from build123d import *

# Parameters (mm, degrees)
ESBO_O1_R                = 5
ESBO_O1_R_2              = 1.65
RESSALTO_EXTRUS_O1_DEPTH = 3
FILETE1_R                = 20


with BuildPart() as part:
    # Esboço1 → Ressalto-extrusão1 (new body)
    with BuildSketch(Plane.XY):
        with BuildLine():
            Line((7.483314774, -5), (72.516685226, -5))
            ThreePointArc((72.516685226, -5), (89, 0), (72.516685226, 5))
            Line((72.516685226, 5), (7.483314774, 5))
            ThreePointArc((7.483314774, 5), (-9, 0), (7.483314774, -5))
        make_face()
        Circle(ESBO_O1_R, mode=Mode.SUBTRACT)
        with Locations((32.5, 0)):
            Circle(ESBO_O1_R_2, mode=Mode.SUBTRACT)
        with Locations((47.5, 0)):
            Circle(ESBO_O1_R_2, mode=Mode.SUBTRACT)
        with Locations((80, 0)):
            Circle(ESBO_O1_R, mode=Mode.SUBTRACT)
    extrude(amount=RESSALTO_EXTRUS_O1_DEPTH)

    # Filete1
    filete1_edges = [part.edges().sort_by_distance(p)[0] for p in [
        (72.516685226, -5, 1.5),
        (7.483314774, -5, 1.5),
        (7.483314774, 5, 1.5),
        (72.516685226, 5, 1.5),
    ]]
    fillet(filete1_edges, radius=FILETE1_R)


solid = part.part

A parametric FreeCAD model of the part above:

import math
import FreeCAD as App
import Part
import Sketcher

V = App.Vector


def edges_at(feature, points):
    """Names of the edges that pass closest to the given points."""
    edges = feature.Shape.Edges
    near = lambda p: min(range(len(edges)), key=lambda i: edges[i].distToShape(Part.Vertex(*p))[0])
    return sorted({f"Edge{near(p) + 1}" for p in points})

doc = App.newDocument("Part")
body = doc.addObject("PartDesign::Body", "Body")

# Sketch on XY plane
sketch1 = body.newObject("Sketcher::SketchObject", "Sketch")
sketch1.AttachmentSupport = (doc.getObject("XY_Plane"), [""])
sketch1.MapMode = "FlatFace"
sketch1.addGeometry(Part.LineSegment(V(7.5, -5, 0), V(72.5, -5, 0)), False)
sketch1.addGeometry(Part.ArcOfCircle(Part.Circle(V(80, 0, 0), V(0, 0, 1), 9), math.radians(-146), math.radians(146)), False)
sketch1.addGeometry(Part.LineSegment(V(72.5, 5, 0), V(7.5, 5, 0)), False)
sketch1.addGeometry(Part.ArcOfCircle(Part.Circle(V(0, 0, 0), V(0, 0, 1), 9), math.radians(34), math.radians(326)), False)
sketch1.addGeometry(Part.Circle(V(0, 0, 0), V(0, 0, 1), 5), False)
sketch1.addGeometry(Part.Circle(V(32.5, 0, 0), V(0, 0, 1), 1.6), False)
sketch1.addGeometry(Part.Circle(V(47.5, 0, 0), V(0, 0, 1), 1.6), False)
sketch1.addGeometry(Part.Circle(V(80, 0, 0), V(0, 0, 1), 5), False)
sketch1.addConstraint(Sketcher.Constraint("Coincident", 0, 2, 1, 1))
sketch1.addConstraint(Sketcher.Constraint("Coincident", 1, 2, 2, 1))
sketch1.addConstraint(Sketcher.Constraint("Coincident", 2, 2, 3, 1))
sketch1.addConstraint(Sketcher.Constraint("Coincident", 3, 2, 0, 1))
sketch1.addConstraint(Sketcher.Constraint("Horizontal", 0))
sketch1.addConstraint(Sketcher.Constraint("Horizontal", 2))
sketch1.addConstraint(Sketcher.Constraint("Coincident", 3, 3, -1, 1))
sketch1.addConstraint(Sketcher.Constraint("Coincident", 4, 3, -1, 1))
sketch1.addConstraint(Sketcher.Constraint("Coincident", 7, 3, 1, 3))
sketch1.addConstraint(Sketcher.Constraint("Equal", 1, 3))
sketch1.addConstraint(Sketcher.Constraint("Equal", 5, 6))
sketch1.addConstraint(Sketcher.Constraint("Equal", 4, 7))
sketch1.addConstraint(Sketcher.Constraint("Symmetric", 0, 2, 1, 2, -1))
sketch1.addConstraint(Sketcher.Constraint("PointOnObject", 5, 3, -1))
sketch1.addConstraint(Sketcher.Constraint("PointOnObject", 6, 3, -1))
sketch1.addConstraint(Sketcher.Constraint("Diameter", 4, 10.0))
sketch1.addConstraint(Sketcher.Constraint("Radius", 1, 9.0))
sketch1.addConstraint(Sketcher.Constraint("Diameter", 5, 3.3))
sketch1.addConstraint(Sketcher.Constraint("DistanceX", -1, 1, 1, 3, 80.0))
sketch1.addConstraint(Sketcher.Constraint("DistanceY", 0, 2, -1, 1, 5.0))
sketch1.addConstraint(Sketcher.Constraint("DistanceX", 5, 3, 6, 3, 15.0))
sketch1.addConstraint(Sketcher.Constraint("DistanceX", -1, 1, 5, 3, 32.5))
pad1 = body.newObject("PartDesign::Pad", "Pad")
pad1.Profile = sketch1
pad1.Length = 3
doc.recompute()

fillet = body.newObject("PartDesign::Fillet", "Fillet")
fillet.Base = (pad1, edges_at(pad1, [
    (72.517, -5, 1.5),
    (7.483, -5, 1.5),
    (7.483, 5, 1.5),
    (72.517, 5, 1.5),
]))
fillet.Radius = 20

doc.recompute()
